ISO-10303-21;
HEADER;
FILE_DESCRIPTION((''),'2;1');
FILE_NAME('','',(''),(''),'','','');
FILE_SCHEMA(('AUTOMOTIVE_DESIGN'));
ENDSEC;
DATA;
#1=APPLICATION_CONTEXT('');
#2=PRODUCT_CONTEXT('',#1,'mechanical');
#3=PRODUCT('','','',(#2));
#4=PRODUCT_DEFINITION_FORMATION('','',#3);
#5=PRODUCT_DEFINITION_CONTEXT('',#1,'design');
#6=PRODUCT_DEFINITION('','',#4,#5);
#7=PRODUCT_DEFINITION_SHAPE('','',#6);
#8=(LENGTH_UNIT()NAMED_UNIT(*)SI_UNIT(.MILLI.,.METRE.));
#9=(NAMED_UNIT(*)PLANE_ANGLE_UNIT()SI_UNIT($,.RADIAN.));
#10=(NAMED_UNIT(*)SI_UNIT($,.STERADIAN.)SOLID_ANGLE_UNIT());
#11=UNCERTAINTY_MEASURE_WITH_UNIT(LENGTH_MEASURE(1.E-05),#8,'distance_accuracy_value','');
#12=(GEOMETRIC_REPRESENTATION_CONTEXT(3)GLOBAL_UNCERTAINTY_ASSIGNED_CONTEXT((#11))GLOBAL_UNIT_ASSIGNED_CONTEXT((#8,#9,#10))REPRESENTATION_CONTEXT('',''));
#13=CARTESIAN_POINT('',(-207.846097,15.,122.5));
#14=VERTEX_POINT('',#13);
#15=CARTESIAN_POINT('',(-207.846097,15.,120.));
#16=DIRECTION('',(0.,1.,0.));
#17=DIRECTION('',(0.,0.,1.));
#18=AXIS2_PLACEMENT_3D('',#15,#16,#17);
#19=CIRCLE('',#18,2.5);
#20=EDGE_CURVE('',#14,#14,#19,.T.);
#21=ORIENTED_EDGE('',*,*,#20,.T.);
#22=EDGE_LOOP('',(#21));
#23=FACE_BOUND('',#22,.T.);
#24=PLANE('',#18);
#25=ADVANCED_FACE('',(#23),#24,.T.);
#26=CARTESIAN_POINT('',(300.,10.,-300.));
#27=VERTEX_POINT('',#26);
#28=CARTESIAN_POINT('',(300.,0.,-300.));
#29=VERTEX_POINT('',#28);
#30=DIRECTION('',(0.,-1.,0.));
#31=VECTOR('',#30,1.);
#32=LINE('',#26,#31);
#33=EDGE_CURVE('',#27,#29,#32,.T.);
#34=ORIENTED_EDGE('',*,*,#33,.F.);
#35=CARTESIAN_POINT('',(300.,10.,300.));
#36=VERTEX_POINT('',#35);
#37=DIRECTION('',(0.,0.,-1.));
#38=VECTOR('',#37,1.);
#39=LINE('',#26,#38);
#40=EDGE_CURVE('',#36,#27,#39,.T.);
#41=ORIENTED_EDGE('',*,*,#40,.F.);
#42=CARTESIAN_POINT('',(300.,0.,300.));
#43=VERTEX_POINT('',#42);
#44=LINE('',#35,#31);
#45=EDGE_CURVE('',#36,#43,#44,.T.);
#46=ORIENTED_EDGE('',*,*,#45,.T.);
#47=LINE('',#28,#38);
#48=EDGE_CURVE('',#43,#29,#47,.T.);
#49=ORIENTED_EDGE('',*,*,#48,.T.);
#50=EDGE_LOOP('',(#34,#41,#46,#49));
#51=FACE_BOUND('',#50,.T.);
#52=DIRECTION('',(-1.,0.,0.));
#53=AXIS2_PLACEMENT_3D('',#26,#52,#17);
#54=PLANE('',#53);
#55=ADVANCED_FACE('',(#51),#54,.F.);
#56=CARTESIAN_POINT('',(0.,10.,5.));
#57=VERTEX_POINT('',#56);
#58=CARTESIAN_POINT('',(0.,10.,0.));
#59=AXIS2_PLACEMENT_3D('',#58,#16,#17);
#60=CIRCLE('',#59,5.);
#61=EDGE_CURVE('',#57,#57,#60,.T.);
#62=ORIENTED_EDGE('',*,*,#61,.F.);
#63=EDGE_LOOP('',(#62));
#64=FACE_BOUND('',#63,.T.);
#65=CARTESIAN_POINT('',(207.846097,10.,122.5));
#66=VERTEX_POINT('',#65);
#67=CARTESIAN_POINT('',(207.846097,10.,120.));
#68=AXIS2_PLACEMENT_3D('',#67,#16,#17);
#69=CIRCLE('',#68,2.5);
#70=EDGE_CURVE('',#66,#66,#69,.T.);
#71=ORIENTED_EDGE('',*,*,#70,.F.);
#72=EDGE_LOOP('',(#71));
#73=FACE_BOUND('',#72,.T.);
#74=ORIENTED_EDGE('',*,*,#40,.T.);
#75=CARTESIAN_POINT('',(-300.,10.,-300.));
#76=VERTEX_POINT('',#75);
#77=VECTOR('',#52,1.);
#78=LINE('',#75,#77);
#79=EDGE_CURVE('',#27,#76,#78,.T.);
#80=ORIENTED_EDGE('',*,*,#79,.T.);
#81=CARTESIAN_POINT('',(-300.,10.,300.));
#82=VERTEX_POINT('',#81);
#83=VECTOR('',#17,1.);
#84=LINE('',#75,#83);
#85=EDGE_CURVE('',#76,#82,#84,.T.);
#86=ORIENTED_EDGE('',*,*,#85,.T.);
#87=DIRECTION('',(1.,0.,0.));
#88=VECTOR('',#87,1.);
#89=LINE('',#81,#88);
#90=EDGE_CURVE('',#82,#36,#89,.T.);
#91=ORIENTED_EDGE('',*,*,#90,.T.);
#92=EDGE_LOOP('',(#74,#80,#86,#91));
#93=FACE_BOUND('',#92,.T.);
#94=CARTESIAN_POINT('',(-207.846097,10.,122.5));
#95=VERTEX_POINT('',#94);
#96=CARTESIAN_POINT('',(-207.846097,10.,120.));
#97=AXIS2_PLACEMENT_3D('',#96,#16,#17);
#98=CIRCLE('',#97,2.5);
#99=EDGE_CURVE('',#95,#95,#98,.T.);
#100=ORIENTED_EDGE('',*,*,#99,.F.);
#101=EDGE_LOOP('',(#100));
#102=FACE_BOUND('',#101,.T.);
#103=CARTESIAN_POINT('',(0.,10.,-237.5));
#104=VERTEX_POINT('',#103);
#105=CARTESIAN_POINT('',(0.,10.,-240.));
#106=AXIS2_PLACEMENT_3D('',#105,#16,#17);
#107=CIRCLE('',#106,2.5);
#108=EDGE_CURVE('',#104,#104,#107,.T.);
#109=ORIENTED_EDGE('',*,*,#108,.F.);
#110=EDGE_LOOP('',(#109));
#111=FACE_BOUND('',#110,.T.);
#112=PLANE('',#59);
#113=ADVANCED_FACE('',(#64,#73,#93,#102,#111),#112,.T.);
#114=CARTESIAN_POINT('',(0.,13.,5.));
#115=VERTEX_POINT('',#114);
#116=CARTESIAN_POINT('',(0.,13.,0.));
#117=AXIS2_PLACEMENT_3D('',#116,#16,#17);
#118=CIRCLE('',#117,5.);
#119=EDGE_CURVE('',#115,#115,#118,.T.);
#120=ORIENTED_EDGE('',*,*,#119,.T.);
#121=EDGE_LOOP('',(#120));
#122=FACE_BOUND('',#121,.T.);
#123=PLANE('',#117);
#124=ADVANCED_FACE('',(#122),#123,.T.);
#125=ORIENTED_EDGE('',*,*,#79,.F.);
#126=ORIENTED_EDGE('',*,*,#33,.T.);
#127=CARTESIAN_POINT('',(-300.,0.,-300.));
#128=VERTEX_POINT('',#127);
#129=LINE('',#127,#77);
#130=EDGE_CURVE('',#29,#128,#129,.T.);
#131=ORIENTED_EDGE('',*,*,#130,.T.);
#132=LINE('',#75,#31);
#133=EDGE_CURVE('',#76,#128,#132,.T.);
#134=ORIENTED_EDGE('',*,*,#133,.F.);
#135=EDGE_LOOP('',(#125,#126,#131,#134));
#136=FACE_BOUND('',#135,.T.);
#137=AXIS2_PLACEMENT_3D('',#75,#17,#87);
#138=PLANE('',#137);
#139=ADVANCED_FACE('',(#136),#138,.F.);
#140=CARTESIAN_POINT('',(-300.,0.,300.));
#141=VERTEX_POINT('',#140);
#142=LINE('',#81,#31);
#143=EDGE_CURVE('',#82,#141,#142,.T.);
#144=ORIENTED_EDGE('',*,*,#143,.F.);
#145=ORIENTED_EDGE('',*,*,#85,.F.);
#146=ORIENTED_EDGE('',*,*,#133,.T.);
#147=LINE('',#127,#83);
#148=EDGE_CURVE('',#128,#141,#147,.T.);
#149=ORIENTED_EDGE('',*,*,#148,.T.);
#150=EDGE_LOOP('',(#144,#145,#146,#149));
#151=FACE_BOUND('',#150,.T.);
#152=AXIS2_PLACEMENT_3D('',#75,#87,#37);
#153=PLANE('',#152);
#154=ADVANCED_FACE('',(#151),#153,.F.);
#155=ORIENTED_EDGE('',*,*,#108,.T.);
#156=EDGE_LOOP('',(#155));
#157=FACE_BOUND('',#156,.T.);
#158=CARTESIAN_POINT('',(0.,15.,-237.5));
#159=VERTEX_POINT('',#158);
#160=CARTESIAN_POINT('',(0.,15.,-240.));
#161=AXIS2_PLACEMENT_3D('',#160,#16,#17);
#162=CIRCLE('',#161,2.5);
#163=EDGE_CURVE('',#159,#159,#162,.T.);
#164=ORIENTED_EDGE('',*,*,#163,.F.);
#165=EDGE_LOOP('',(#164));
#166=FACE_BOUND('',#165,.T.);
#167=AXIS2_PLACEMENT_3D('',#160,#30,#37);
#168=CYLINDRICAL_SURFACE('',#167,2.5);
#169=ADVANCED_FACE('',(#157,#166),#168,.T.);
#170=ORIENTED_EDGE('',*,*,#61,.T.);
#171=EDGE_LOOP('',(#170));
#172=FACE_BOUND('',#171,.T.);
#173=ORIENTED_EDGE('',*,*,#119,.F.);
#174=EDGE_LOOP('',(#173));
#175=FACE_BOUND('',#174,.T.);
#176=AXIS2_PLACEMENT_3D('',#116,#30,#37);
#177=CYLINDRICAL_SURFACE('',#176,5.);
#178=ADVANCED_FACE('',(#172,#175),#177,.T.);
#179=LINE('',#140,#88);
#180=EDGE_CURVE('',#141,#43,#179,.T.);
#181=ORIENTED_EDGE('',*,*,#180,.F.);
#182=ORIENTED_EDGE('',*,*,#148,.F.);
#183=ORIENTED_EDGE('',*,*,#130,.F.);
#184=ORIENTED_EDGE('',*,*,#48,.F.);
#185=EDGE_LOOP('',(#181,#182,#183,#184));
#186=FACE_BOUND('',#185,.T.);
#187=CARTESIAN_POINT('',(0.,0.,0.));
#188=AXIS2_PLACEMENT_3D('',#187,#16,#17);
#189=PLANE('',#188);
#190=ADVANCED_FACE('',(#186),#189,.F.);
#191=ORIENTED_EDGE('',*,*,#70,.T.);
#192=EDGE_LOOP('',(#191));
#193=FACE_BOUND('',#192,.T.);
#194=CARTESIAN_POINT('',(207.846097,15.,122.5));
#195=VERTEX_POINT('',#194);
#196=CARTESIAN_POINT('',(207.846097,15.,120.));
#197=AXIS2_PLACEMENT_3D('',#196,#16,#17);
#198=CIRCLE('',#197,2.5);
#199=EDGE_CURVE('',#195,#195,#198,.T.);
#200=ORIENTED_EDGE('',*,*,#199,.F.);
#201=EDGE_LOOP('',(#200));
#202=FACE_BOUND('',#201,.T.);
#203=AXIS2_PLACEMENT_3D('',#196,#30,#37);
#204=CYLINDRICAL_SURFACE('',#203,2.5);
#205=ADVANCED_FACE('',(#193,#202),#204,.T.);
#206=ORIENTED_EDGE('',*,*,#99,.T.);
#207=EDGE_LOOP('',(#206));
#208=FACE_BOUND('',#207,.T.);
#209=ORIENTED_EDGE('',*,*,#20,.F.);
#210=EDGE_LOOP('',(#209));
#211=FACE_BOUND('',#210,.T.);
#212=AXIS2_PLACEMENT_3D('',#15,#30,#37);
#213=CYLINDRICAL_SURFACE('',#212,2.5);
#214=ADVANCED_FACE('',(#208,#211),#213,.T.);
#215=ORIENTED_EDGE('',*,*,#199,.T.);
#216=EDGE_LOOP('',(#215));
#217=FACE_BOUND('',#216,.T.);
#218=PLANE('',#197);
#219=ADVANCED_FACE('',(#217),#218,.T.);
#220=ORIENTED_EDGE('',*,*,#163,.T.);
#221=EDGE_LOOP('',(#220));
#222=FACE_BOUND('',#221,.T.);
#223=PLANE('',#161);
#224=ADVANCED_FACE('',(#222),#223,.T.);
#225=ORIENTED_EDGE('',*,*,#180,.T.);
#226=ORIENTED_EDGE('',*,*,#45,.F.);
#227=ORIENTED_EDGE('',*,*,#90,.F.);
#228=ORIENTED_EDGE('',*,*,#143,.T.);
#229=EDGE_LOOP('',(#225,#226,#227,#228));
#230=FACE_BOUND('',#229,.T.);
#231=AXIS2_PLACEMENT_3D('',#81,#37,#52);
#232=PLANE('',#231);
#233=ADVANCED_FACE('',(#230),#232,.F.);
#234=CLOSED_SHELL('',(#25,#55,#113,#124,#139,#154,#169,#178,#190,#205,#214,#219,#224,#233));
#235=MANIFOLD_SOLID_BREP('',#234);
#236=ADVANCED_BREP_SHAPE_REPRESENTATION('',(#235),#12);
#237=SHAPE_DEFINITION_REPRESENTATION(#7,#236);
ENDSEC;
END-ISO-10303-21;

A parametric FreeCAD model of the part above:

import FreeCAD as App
import Part
import Sketcher

V = App.Vector
Q = App.Units.Quantity

doc = App.newDocument("Part")
body = doc.addObject("PartDesign::Body", "Body")

# Sketch on XZ plane
sketch1 = body.newObject("Sketcher::SketchObject", "Sketch")
sketch1.AttachmentSupport = (doc.getObject("XZ_Plane"), [""])
sketch1.MapMode = "FlatFace"
sketch1.addGeometry([
    Part.LineSegment(V(-300, -300, 0), V(-300, 300, 0)),
    Part.LineSegment(V(-300, 300, 0), V(300, 300, 0)),
    Part.LineSegment(V(300, 300, 0), V(300, -300, 0)),
    Part.LineSegment(V(300, -300, 0), V(-300, -300, 0)),
], False)
sketch1.addConstraint([
    Sketcher.Constraint("Coincident", 0, 2, 1, 1),
    Sketcher.Constraint("Coincident", 1, 2, 2, 1),
    Sketcher.Constraint("Coincident", 2, 2, 3, 1),
    Sketcher.Constraint("Coincident", 3, 2, 0, 1),
    Sketcher.Constraint("Vertical", 0),
    Sketcher.Constraint("Horizontal", 1),
    Sketcher.Constraint("Vertical", 2),
    Sketcher.Constraint("Horizontal", 3),
    Sketcher.Constraint("Symmetric", 0, 2, 2, 2, -1, 1),
    Sketcher.Constraint("Equal", 3, 0),
    Sketcher.Constraint("DistanceX", 1, 1, 1, 2, Q("600 mm")),
])
pad1 = body.newObject("PartDesign::Pad", "Pad")
pad1.Profile = sketch1
pad1.Length = 10
pad1.Reversed = True

# Sketch on XZ plane
sketch2 = body.newObject("Sketcher::SketchObject", "Sketch001")
sketch2.AttachmentSupport = (doc.getObject("XZ_Plane"), [""])
sketch2.MapMode = "FlatFace"
sketch2.AttachmentOffset = App.Placement(V(0, 0, -10), App.Rotation())
sketch2.addGeometry([
    Part.Circle(V(0, -240, 0), V(0, 0, 1), 2.5),
    Part.Circle(V(-207.8, 120, 0), V(0, 0, 1), 2.5),
    Part.Circle(V(207.8, 120, 0), V(0, 0, 1), 2.5),
], False)
sketch2.addConstraint([
    Sketcher.Constraint("Equal", 0, 1),
    Sketcher.Constraint("Equal", 1, 2),
    Sketcher.Constraint("Symmetric", 1, 3, 2, 3, -2),
    Sketcher.Constraint("PointOnObject", 0, 3, -2),
    Sketcher.Constraint("Diameter", 0, Q("5 mm")),
    Sketcher.Constraint("DistanceY", 0, 3, -1, 1, Q("240 mm")),
    Sketcher.Constraint("DistanceY", -1, 1, 1, 3, Q("120 mm")),
    Sketcher.Constraint("DistanceX", 1, 3, -1, 1, Q("207.846097 mm")),
])
pad2 = body.newObject("PartDesign::Pad", "Pad001")
pad2.Profile = sketch2
pad2.Length = 5
pad2.Reversed = True

# Sketch on XZ plane
sketch3 = body.newObject("Sketcher::SketchObject", "Sketch002")
sketch3.AttachmentSupport = (doc.getObject("XZ_Plane"), [""])
sketch3.MapMode = "FlatFace"
sketch3.AttachmentOffset = App.Placement(V(0, 0, -10), App.Rotation())
sketch3.addGeometry(Part.Circle(V(0, 0, 0), V(0, 0, 1), 5), False)
sketch3.addConstraint([
    Sketcher.Constraint("Coincident", 0, 3, -1, 1),
    Sketcher.Constraint("Diameter", 0, Q("10 mm")),
])
pad3 = body.newObject("PartDesign::Pad", "Pad002")
pad3.Profile = sketch3
pad3.Length = 3
pad3.Reversed = True

doc.recompute()
